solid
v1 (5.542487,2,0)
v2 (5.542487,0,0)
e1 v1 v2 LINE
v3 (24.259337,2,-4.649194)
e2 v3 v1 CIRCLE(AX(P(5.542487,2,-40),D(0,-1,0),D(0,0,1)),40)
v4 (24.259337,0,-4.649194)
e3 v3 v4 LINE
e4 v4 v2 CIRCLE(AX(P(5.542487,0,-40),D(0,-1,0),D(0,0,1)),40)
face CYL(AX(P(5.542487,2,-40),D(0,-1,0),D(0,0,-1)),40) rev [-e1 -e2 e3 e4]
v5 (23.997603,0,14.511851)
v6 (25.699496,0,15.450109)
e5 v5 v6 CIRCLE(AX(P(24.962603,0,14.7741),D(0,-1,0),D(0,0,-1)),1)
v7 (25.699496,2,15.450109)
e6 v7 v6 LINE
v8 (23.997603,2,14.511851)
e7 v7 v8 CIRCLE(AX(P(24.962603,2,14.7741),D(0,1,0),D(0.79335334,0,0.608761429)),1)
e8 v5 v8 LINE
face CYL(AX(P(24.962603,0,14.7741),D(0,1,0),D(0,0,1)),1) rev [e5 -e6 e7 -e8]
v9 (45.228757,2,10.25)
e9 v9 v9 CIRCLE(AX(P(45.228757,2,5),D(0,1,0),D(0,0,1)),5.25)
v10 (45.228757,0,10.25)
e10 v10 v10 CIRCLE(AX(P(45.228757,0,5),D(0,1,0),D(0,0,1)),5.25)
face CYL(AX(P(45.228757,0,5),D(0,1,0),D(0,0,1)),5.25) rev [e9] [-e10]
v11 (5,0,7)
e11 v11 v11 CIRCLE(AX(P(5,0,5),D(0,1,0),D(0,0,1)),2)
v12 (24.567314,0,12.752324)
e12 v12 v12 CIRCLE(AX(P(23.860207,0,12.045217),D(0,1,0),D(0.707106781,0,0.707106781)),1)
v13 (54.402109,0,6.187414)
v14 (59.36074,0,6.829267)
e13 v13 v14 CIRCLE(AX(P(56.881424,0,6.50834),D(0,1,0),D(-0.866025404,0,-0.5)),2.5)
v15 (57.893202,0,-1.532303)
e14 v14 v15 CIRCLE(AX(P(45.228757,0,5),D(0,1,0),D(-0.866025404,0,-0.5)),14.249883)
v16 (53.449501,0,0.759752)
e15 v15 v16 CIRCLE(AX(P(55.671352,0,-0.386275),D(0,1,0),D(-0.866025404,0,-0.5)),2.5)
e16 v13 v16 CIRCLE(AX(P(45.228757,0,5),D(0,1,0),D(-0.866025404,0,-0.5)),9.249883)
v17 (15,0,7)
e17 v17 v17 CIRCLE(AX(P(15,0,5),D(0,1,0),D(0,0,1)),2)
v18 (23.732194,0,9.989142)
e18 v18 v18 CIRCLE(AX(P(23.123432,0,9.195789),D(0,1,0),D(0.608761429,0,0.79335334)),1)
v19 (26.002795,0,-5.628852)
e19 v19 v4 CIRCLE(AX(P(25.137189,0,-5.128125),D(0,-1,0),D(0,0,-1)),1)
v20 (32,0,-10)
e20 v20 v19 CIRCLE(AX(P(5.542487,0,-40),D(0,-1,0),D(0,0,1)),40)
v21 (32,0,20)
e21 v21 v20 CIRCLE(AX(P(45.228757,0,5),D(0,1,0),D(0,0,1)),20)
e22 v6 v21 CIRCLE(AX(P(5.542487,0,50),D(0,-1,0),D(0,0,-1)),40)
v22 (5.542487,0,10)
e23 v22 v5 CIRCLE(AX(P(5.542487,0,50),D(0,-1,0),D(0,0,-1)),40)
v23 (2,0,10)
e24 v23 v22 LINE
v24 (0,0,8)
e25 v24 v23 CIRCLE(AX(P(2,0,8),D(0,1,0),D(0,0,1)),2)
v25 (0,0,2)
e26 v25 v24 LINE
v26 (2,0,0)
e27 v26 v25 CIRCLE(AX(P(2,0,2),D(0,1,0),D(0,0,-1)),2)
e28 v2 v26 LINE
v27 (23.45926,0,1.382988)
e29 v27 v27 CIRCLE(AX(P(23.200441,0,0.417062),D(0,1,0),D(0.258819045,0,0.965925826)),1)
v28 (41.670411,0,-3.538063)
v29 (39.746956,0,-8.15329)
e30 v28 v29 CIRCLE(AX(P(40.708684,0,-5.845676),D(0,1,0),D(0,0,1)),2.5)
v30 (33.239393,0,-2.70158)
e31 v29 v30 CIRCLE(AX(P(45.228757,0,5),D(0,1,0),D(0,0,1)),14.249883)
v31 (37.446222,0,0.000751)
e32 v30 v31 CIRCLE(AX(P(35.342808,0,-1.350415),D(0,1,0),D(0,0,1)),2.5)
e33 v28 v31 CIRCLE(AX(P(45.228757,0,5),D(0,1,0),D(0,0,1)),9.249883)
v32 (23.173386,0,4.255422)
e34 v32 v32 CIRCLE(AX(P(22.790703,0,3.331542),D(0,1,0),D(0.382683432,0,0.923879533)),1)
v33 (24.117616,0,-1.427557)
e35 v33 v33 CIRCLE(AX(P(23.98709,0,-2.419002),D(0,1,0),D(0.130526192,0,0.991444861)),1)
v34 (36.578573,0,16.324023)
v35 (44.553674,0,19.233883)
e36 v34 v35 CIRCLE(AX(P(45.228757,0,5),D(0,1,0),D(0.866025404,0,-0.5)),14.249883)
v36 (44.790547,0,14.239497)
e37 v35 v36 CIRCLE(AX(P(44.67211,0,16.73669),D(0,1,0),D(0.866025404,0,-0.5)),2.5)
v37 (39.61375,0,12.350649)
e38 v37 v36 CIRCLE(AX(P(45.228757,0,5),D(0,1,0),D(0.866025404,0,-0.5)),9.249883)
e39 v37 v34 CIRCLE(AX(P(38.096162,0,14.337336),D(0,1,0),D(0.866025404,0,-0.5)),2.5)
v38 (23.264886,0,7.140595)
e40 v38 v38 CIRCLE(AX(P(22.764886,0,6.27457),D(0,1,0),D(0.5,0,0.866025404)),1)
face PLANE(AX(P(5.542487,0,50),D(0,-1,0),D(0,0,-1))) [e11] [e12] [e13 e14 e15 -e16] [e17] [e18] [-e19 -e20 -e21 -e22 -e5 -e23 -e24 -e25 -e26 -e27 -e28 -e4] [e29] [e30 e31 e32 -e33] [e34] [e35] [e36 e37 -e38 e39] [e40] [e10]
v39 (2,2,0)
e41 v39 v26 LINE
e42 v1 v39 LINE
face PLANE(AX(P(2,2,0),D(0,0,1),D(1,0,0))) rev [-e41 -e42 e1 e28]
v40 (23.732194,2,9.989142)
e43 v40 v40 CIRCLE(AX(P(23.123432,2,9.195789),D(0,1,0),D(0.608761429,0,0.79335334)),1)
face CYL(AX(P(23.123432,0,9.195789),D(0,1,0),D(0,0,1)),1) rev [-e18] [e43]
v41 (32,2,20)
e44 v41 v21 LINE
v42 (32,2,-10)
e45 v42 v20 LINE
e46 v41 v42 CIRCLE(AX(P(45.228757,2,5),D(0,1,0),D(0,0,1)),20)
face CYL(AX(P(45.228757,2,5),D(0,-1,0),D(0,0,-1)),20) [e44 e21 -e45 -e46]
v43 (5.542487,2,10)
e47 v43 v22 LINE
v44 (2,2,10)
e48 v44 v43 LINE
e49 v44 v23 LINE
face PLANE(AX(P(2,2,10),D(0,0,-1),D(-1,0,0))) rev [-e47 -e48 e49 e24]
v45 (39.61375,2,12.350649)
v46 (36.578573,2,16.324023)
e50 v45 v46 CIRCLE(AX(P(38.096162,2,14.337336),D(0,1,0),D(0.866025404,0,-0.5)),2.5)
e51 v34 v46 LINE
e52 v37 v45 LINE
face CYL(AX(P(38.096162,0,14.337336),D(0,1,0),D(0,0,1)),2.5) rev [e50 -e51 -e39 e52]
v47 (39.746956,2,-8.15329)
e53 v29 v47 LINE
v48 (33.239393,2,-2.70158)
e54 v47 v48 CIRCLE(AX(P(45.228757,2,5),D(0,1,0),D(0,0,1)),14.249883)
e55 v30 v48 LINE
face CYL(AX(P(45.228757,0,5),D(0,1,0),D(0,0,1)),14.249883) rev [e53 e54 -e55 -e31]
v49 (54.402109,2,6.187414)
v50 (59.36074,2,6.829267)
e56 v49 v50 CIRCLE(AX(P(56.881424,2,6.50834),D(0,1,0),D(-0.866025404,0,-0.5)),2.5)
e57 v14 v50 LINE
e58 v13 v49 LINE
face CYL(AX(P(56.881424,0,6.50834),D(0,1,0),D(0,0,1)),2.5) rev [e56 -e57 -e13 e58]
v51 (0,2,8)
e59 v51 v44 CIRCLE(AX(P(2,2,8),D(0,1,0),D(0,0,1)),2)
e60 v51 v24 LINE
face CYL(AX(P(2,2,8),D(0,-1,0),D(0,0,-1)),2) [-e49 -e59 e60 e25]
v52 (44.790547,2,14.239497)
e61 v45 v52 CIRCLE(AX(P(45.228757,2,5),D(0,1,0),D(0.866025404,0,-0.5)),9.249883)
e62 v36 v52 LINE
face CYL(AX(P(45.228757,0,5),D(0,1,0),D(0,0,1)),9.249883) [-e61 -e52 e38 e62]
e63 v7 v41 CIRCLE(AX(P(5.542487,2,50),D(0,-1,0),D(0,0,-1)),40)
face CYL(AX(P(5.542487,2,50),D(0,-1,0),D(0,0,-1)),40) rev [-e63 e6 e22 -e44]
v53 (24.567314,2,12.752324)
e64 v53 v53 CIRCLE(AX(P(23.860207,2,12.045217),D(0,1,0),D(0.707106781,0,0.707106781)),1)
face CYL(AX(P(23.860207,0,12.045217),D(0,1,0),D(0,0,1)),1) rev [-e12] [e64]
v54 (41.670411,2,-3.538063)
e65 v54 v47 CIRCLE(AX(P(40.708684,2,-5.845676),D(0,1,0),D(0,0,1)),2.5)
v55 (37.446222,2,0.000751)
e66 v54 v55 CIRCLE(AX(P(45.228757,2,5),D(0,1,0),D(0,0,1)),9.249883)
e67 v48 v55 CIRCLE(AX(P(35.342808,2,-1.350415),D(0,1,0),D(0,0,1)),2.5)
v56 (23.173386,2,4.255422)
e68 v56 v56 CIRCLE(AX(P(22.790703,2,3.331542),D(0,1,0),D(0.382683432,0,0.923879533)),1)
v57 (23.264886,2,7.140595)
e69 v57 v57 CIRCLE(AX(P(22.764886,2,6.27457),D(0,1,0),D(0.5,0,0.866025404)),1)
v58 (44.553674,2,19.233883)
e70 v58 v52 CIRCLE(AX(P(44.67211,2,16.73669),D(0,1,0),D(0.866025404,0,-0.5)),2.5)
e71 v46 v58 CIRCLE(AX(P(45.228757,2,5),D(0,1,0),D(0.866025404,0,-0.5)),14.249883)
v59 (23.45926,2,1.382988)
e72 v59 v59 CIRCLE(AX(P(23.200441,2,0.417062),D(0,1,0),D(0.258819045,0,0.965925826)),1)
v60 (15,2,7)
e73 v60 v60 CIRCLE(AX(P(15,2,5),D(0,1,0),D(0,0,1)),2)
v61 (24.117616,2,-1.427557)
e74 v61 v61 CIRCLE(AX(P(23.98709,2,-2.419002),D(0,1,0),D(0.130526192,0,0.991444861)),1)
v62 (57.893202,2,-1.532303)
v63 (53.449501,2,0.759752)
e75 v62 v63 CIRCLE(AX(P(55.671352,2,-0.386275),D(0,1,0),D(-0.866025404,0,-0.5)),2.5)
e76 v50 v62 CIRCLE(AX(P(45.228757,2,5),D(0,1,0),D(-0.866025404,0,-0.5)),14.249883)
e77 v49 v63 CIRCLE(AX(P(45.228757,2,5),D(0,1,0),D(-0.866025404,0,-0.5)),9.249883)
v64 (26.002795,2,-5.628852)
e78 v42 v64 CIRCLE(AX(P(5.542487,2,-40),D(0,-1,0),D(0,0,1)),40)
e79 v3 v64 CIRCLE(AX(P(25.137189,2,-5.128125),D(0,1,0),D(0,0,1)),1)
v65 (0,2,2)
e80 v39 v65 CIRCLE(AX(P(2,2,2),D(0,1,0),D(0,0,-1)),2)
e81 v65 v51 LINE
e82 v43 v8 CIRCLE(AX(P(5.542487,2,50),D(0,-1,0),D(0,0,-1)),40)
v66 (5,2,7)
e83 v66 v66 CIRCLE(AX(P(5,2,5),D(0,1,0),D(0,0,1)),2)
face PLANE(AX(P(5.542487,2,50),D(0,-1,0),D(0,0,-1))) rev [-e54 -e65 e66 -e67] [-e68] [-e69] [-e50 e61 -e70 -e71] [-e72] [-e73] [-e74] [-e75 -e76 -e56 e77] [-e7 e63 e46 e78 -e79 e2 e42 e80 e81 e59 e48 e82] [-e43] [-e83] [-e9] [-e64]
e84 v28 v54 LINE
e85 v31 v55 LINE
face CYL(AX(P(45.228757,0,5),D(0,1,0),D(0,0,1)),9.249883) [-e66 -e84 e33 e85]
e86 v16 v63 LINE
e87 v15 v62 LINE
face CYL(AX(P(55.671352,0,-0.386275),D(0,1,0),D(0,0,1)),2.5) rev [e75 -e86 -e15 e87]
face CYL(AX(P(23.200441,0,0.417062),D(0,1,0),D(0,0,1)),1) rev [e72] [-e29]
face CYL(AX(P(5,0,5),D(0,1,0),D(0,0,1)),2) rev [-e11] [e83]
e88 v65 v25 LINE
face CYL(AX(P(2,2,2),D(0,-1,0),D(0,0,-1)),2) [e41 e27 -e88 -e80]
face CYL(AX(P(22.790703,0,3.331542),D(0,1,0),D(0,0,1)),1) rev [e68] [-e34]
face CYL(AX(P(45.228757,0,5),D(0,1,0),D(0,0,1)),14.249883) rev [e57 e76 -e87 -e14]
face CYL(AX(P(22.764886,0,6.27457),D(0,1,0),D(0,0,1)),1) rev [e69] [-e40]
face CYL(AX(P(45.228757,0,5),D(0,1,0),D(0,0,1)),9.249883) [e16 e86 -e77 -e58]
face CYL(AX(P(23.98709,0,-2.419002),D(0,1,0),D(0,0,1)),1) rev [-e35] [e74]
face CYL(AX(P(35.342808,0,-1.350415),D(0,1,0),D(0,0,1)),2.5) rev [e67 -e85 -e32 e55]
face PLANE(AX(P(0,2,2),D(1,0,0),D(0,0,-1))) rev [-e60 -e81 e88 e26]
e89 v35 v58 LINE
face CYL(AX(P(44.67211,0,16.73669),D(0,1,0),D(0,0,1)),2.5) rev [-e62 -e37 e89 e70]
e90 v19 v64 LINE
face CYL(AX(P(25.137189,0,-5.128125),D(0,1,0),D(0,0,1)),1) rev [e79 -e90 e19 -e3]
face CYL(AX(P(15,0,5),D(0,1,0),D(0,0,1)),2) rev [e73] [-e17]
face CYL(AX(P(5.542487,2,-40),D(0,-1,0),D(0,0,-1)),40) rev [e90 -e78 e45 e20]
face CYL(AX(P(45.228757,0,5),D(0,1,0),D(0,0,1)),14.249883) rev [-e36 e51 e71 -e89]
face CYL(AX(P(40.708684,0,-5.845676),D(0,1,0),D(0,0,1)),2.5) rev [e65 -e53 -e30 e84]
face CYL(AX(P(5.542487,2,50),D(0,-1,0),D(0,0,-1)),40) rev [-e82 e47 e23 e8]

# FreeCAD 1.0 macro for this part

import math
import FreeCAD as App
import Part
import Sketcher
from FreeCAD import Vector
Q = App.Units.Quantity

doc = App.newDocument("Part")
body = doc.addObject("PartDesign::Body", "Body")

# Sketch on XZ plane
sketch1 = body.newObject("Sketcher::SketchObject", "Sketch")
sketch1.AttachmentSupport = (doc.getObject("XZ_Plane"), [""])
sketch1.MapMode = "FlatFace"
sketch1.addGeometry(Part.LineSegment(Vector(0, 2, 0), Vector(0, 8, 0)), False)
sketch1.addGeometry(Part.ArcOfCircle(Part.Circle(Vector(2, 8, 0), Vector(0, 0, 1), 2), math.radians(90), math.radians(180)), False)
sketch1.addGeometry(Part.LineSegment(Vector(2, 10, 0), Vector(5.542487, 10, 0)), False)
sketch1.addGeometry(Part.ArcOfCircle(Part.Circle(Vector(5.542487, 50, 0), Vector(0, 0, 1), 40), math.radians(-90), math.radians(-48.590378)), False)
sketch1.addGeometry(Part.ArcOfCircle(Part.Circle(Vector(45.228757, 5, 0), Vector(0, 0, 1), 20), math.radians(-131.409622), math.radians(131.409622)), False)
sketch1.addGeometry(Part.ArcOfCircle(Part.Circle(Vector(5.542487, -40, 0), Vector(0, 0, 1), 40), math.radians(48.590378), math.radians(90)), False)
sketch1.addGeometry(Part.LineSegment(Vector(5.542487, 0, 0), Vector(2, 0, 0)), False)
sketch1.addGeometry(Part.ArcOfCircle(Part.Circle(Vector(2, 2, 0), Vector(0, 0, 1), 2), math.radians(-180), math.radians(-90)), False)
sketch1.addConstraint(Sketcher.Constraint("Tangent", 0, 2, 1, 2))
sketch1.addConstraint(Sketcher.Constraint("Tangent", 1, 1, 2, 1))
sketch1.addConstraint(Sketcher.Constraint("Tangent", 2, 2, 3, 1))
sketch1.addConstraint(Sketcher.Constraint("Tangent", 3, 2, 4, 2))
sketch1.addConstraint(Sketcher.Constraint("Tangent", 4, 1, 5, 1))
sketch1.addConstraint(Sketcher.Constraint("Tangent", 5, 2, 6, 1))
sketch1.addConstraint(Sketcher.Constraint("Tangent", 6, 2, 7, 2))
sketch1.addConstraint(Sketcher.Constraint("Tangent", 7, 1, 0, 1))
sketch1.addConstraint(Sketcher.Constraint("Vertical", 0))
sketch1.addConstraint(Sketcher.Constraint("Horizontal", 2))
sketch1.addConstraint(Sketcher.Constraint("Horizontal", 6))
sketch1.addConstraint(Sketcher.Constraint("Equal", 3, 5))
sketch1.addConstraint(Sketcher.Constraint("Equal", 1, 7))
sketch1.addConstraint(Sketcher.Constraint("PointOnObject", 0, 2, -2))
sketch1.addConstraint(Sketcher.Constraint("PointOnObject", 5, 2, -1))
sketch1.addConstraint(Sketcher.Constraint("Vertical", 3, 3, 5, 3))
sketch1.addConstraint(Sketcher.Constraint("Radius", 1, Q("2 mm")))
sketch1.addConstraint(Sketcher.Constraint("Radius", 3, Q("40 mm")))
sketch1.addConstraint(Sketcher.Constraint("Radius", 4, Q("20 mm")))
sketch1.addConstraint(Sketcher.Constraint("DistanceY", 0, 1, 0, 2, Q("6 mm")))
sketch1.addConstraint(Sketcher.Constraint("DistanceX", -1, 1, 3, 2, Q("32 mm")))
pad1 = body.newObject("PartDesign::Pad", "Pad")
pad1.Profile = sketch1
pad1.Length = 2
pad1.Reversed = True

# Sketch on XZ plane
sketch2 = body.newObject("Sketcher::SketchObject", "Sketch001")
sketch2.AttachmentSupport = (doc.getObject("XZ_Plane"), [""])
sketch2.MapMode = "FlatFace"
sketch2.AttachmentOffset = App.Placement(Vector(0, 0, -2), App.Rotation())
sketch2.addGeometry(Part.Circle(Vector(25.137189, -5.128125, 0), Vector(0, 0, 1), 1), False)
sketch2.addConstraint(Sketcher.Constraint("Diameter", 0, Q("2 mm")))
sketch2.addConstraint(Sketcher.Constraint("DistanceX", -1, 1, 0, 3, Q("25.137189 mm")))
sketch2.addConstraint(Sketcher.Constraint("DistanceY", 0, 3, -1, 1, Q("5.128125 mm")))
pocket1 = body.newObject("PartDesign::Pocket", "Pocket")
pocket1.Profile = sketch2
pocket1.Type = "ThroughAll"
pocket1.Reversed = True
doc.recompute()

datumline = body.newObject("PartDesign::Line", "DatumLine")
datumline.Placement = App.Placement(Vector(45.228757, 0, 5), App.Rotation(Vector(0, 0, 1), Vector(0, 1, 0)))
polarpattern = body.newObject("PartDesign::PolarPattern", "PolarPattern")
polarpattern.Originals = [pocket1]
polarpattern.Axis = (datumline, [""])
polarpattern.Angle = 52.5
polarpattern.Occurrences = 8
body.Tip = polarpattern

# Sketch on XZ plane
sketch3 = body.newObject("Sketcher::SketchObject", "Sketch002")
sketch3.AttachmentSupport = (doc.getObject("XZ_Plane"), [""])
sketch3.MapMode = "FlatFace"
sketch3.AttachmentOffset = App.Placement(Vector(0, 0, -2), App.Rotation())
sketch3.addGeometry(Part.Circle(Vector(5, 5, 0), Vector(0, 0, 1), 2), False)
sketch3.addConstraint(Sketcher.Constraint("Diameter", 0, Q("4 mm")))
sketch3.addConstraint(Sketcher.Constraint("DistanceX", -1, 1, 0, 3, Q("5 mm")))
sketch3.addConstraint(Sketcher.Constraint("DistanceY", -1, 1, 0, 3, Q("5 mm")))
pocket2 = body.newObject("PartDesign::Pocket", "Pocket001")
pocket2.Profile = sketch3
pocket2.Type = "ThroughAll"
pocket2.Reversed = True
doc.recompute()

linearpattern = body.newObject("PartDesign::LinearPattern", "LinearPattern")
linearpattern.Originals = [pocket2]
linearpattern.Direction = (doc.getObject("X_Axis"), [""])
linearpattern.Mode = "offset"
linearpattern.Offset = 10
linearpattern.Occurrences = 2
body.Tip = linearpattern

# Sketch on XZ plane
sketch4 = body.newObject("Sketcher::SketchObject", "Sketch003")
sketch4.AttachmentSupport = (doc.getObject("XZ_Plane"), [""])
sketch4.MapMode = "FlatFace"
sketch4.AttachmentOffset = App.Placement(Vector(0, 0, -2), App.Rotation())
sketch4.addGeometry(Part.ArcOfCircle(Part.Circle(Vector(45.228757, 5, 0), Vector(0, 0, 1), 9.249883), math.radians(-147.284618), math.radians(-112.624551)), False)
sketch4.addGeometry(Part.ArcOfCircle(Part.Circle(Vector(40.708684, -5.845676, 0), Vector(0, 0, 1), 2.5), math.radians(-112.624551), math.radians(67.375449)), False)
sketch4.addGeometry(Part.ArcOfCircle(Part.Circle(Vector(45.228757, 5, 0), Vector(0, 0, 1), 14.249883), math.radians(-147.284618), math.radians(-112.624551)), False)
sketch4.addGeometry(Part.ArcOfCircle(Part.Circle(Vector(35.342808, -1.350415, 0), Vector(0, 0, 1), 2.5), math.radians(32.715382), math.radians(212.715382)), False)
sketch4.addConstraint(Sketcher.Constraint("Tangent", 0, 2, 1, 2))
sketch4.addConstraint(Sketcher.Constraint("Tangent", 1, 1, 2, 2))
sketch4.addConstraint(Sketcher.Constraint("Tangent", 2, 1, 3, 2))
sketch4.addConstraint(Sketcher.Constraint("Tangent", 3, 1, 0, 1))
sketch4.addConstraint(Sketcher.Constraint("Coincident", 2, 3, 0, 3))
sketch4.addConstraint(Sketcher.Constraint("Radius", 1, Q("2.5 mm")))
sketch4.addConstraint(Sketcher.Constraint("DistanceY", -1, 1, 0, 3, Q("5 mm")))
sketch4.addConstraint(Sketcher.Constraint("Radius", 0, Q("9.249883 mm")))
sketch4.addConstraint(Sketcher.Constraint("DistanceX", 1, 1, 2, 3, Q("5.4818 mm")))
sketch4.addConstraint(Sketcher.Constraint("DistanceX", -1, 1, 0, 2, Q("41.670411 mm")))
sketch4.addConstraint(Sketcher.Constraint("DistanceY", 2, 1, -1, 1, Q("2.70158 mm")))
pocket3 = body.newObject("PartDesign::Pocket", "Pocket002")
pocket3.Profile = sketch4
pocket3.Type = "ThroughAll"
pocket3.Reversed = True
doc.recompute()

datumline2 = body.newObject("PartDesign::Line", "DatumLine001")
datumline2.Placement = App.Placement(Vector(45.228757, 0, 5), App.Rotation(Vector(0, 0, 1), Vector(0, 1, 0)))
polarpattern2 = body.newObject("PartDesign::PolarPattern", "PolarPattern001")
polarpattern2.Originals = [pocket3]
polarpattern2.Axis = (datumline2, [""])
polarpattern2.Angle = 360
polarpattern2.Occurrences = 3
body.Tip = polarpattern2

# Sketch on XZ plane
sketch5 = body.newObject("Sketcher::SketchObject", "Sketch004")
sketch5.AttachmentSupport = (doc.getObject("XZ_Plane"), [""])
sketch5.MapMode = "FlatFace"
sketch5.AttachmentOffset = App.Placement(Vector(0, 0, -2), App.Rotation())
sketch5.addGeometry(Part.Circle(Vector(45.228757, 5, 0), Vector(0, 0, 1), 5.25), False)
sketch5.addConstraint(Sketcher.Constraint("Diameter", 0, Q("10.5 mm")))
sketch5.addConstraint(Sketcher.Constraint("DistanceY", -1, 1, 0, 3, Q("5 mm")))
sketch5.addConstraint(Sketcher.Constraint("DistanceX", -1, 1, 0, 3, Q("45.228757 mm")))
pocket4 = body.newObject("PartDesign::Pocket", "Pocket003")
pocket4.Profile = sketch5
pocket4.Type = "ThroughAll"
pocket4.Reversed = True

doc.recompute()
